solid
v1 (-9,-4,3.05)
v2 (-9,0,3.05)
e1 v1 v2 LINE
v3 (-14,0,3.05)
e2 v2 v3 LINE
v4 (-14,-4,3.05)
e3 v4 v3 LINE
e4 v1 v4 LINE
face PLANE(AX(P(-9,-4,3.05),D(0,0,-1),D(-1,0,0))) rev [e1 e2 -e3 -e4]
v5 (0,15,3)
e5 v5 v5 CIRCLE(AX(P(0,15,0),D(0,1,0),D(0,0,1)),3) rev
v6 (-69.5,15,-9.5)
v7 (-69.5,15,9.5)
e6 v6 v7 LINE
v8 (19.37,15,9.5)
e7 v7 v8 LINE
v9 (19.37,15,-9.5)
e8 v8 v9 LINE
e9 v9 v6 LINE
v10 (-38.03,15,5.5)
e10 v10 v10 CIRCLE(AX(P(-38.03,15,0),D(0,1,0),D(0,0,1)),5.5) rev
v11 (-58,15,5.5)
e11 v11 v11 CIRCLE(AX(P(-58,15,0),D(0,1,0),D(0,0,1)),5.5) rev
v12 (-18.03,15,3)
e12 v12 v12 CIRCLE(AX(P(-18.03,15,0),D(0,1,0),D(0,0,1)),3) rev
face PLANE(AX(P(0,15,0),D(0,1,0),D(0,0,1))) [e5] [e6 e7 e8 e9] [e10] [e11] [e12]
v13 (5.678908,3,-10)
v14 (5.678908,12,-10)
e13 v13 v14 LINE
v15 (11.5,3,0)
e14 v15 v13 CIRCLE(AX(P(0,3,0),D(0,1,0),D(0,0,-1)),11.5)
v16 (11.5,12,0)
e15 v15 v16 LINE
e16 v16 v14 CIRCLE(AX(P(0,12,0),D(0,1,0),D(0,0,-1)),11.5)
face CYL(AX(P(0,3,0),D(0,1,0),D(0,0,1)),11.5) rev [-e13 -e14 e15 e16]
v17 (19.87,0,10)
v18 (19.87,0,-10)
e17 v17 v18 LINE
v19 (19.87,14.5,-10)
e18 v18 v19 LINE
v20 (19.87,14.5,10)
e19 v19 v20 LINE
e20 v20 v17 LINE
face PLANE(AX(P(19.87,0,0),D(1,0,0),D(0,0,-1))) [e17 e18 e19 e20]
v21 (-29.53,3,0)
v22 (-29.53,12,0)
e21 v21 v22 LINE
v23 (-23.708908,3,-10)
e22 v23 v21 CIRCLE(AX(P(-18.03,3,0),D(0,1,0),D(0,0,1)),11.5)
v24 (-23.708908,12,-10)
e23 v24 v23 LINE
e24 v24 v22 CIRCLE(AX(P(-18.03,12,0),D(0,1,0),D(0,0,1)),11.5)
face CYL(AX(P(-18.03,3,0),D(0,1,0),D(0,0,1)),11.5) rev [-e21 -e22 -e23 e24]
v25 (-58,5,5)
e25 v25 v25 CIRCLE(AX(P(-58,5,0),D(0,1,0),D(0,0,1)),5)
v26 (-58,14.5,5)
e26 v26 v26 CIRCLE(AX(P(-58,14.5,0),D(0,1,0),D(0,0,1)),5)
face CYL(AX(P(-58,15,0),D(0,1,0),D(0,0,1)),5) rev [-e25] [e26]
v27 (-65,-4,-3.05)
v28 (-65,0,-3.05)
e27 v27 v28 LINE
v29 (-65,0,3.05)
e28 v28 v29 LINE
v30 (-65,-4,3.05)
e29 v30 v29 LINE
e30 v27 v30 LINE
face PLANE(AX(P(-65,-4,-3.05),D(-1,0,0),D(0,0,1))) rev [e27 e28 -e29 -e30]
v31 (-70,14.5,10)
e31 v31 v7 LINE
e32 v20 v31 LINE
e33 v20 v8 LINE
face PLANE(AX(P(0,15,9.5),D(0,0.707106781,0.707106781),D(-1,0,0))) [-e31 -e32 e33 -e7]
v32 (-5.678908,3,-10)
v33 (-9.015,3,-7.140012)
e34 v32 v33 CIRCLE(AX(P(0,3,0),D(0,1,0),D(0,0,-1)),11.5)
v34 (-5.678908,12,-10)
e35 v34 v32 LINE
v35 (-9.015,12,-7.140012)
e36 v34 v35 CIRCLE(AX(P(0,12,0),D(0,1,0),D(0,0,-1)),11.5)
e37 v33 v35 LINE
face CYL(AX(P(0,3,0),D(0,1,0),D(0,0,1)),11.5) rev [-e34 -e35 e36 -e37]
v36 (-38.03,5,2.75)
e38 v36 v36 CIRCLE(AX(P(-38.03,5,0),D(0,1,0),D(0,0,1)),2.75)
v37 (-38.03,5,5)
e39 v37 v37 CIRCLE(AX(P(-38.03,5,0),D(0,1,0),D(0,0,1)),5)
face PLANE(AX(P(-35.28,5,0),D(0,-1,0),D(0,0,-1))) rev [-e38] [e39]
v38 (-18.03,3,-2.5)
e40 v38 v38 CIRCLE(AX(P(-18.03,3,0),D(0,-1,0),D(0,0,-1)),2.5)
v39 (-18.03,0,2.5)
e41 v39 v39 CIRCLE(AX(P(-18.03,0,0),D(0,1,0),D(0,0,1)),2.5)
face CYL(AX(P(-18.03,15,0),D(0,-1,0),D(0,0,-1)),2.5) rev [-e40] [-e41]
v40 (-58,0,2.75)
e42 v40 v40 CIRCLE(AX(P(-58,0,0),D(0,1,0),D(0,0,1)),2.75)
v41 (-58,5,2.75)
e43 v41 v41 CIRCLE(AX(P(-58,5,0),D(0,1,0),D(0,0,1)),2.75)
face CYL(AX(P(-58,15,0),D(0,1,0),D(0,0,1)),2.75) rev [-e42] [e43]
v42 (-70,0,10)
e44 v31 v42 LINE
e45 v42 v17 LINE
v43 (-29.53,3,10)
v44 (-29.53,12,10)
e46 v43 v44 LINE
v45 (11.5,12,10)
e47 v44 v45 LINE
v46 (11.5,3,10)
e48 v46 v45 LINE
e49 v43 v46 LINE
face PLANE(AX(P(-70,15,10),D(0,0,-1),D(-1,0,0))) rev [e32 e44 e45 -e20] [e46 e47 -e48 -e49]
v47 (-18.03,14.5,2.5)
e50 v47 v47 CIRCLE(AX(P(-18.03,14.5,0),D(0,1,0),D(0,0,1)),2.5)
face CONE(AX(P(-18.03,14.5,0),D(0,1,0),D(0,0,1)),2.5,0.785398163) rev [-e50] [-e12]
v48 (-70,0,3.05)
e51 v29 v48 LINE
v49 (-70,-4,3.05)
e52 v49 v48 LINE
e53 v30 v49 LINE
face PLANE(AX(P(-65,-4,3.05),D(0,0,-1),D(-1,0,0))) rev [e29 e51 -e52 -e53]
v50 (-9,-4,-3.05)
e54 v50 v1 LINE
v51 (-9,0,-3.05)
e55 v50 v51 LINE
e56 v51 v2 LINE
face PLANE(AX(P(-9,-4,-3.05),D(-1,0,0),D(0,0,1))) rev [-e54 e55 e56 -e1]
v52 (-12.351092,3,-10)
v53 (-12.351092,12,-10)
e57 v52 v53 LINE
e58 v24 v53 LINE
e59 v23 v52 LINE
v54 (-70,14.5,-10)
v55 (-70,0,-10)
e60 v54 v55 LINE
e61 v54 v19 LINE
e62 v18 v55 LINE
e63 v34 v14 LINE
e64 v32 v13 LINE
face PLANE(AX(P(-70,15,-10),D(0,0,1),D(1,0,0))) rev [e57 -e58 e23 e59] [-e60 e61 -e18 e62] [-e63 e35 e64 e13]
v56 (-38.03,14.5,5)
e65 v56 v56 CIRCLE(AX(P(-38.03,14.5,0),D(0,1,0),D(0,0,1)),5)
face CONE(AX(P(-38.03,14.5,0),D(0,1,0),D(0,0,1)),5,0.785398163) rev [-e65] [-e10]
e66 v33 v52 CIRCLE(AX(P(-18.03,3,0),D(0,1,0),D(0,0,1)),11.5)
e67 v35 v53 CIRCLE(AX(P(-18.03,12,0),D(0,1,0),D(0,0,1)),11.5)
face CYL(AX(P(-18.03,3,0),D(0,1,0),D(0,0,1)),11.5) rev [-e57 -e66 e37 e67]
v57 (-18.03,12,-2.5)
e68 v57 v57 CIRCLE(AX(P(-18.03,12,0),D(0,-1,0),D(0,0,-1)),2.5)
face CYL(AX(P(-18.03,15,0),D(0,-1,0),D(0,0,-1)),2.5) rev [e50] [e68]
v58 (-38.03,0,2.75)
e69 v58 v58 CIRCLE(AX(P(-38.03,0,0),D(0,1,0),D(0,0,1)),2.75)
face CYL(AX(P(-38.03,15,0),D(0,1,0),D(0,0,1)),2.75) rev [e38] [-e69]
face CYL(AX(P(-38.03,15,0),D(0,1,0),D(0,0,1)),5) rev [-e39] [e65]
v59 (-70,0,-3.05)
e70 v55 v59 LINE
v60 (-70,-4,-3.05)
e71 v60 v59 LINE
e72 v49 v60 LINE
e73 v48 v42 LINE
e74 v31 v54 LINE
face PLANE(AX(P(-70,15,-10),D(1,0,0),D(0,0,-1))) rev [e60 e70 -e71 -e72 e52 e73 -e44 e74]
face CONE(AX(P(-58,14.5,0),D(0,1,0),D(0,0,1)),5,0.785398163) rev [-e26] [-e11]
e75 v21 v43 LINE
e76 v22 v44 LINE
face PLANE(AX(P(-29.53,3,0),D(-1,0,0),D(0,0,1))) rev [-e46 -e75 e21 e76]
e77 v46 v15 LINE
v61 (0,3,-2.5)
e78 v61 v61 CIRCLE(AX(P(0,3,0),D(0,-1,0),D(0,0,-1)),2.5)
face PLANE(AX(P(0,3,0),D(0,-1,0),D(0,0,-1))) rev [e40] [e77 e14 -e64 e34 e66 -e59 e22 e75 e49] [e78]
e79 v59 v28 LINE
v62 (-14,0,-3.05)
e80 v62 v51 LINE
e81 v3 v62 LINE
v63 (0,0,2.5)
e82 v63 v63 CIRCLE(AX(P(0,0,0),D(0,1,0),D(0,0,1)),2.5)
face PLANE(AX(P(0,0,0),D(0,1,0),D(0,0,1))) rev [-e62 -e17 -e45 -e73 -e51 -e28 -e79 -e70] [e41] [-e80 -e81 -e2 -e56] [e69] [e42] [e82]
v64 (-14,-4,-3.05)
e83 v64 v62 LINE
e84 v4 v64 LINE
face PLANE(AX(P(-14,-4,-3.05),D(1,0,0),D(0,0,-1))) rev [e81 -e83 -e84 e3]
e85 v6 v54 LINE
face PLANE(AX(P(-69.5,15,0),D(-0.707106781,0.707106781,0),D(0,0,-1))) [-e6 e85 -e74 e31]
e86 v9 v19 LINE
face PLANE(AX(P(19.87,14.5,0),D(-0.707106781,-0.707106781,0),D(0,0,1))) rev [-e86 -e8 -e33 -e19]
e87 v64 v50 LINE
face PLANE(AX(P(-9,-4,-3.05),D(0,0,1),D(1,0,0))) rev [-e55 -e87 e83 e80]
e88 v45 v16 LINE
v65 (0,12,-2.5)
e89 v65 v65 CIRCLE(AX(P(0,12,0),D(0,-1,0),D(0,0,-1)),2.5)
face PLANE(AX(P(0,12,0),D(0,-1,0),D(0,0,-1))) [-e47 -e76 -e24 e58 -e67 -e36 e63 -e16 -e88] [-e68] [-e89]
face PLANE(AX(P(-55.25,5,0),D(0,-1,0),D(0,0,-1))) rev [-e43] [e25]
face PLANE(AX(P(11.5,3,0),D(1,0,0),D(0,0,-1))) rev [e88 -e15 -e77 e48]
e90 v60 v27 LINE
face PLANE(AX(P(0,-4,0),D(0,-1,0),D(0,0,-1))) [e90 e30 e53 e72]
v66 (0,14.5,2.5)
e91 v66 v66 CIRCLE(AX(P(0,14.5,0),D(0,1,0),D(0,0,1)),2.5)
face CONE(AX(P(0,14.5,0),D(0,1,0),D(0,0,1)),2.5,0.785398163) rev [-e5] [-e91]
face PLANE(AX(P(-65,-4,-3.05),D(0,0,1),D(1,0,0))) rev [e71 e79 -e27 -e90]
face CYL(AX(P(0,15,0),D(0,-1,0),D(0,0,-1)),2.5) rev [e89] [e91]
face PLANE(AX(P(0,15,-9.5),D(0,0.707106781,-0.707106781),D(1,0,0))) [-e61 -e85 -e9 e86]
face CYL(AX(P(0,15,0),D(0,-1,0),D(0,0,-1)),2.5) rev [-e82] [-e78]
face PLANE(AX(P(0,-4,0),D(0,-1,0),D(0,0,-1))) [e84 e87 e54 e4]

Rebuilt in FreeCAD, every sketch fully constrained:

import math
import FreeCAD as App
import Part
import Sketcher
from FreeCAD import Vector


def edges_at(feature, points):
    """Names of the edges that pass closest to the given points."""
    edges = feature.Shape.Edges
    near = lambda p: min(range(len(edges)), key=lambda i: edges[i].distToShape(Part.Vertex(*p))[0])
    return sorted({f"Edge{near(p) + 1}" for p in points})


def add_polygon(sketch, points):
    """Adds a closed chain of lines whose ends are joined by coincident constraints."""
    first, n = sketch.GeometryCount, len(points)
    for a, b in zip(points, points[1:] + points[:1]):
        sketch.addGeometry(Part.LineSegment(App.Vector(*a, 0), App.Vector(*b, 0)), False)
    for i in range(n):
        sketch.addConstraint(Sketcher.Constraint("Coincident", first + i, 2, first + (i + 1) % n, 1))

doc = App.newDocument("Part")
body = doc.addObject("PartDesign::Body", "Body")

# Sketch on XZ plane
sketch1 = doc.addObject("Sketcher::SketchObject", "Sketch")
body.addObject(sketch1)
sketch1.AttachmentSupport = (doc.XZ_Plane, [""])
sketch1.MapMode = "FlatFace"
add_polygon(sketch1, [(-70, -10), (-70, 10), (11.4, 10), (11.4, -10)])  # lines 0-3
sketch1.addGeometry(Part.Circle(Vector(-18, 0, 0), Vector(0, 0, 1), 2.5), False)  # 4
sketch1.addGeometry(Part.Circle(Vector(0, 0, 0), Vector(0, 0, 1), 2.5), False)  # 5
sketch1.addConstraint([
    Sketcher.Constraint("Vertical", 0),
    Sketcher.Constraint("Horizontal", 1),
    Sketcher.Constraint("Vertical", 2),
    Sketcher.Constraint("Horizontal", 3),
    Sketcher.Constraint("Coincident", 5, 3, -1, 1),
    Sketcher.Constraint("Equal", 4, 5),
    Sketcher.Constraint("PointOnObject", 4, 3, -1),
    Sketcher.Constraint("Diameter", 4, 5.0),
    Sketcher.Constraint("DistanceY", 0, 1, 0, 2, 20.0),
    Sketcher.Constraint("DistanceX", 0, 2, -1, 1, 70.0),
    Sketcher.Constraint("DistanceY", -1, 1, 0, 2, 10.0),
    Sketcher.Constraint("DistanceX", 1, 1, 1, 2, 81.37),
    Sketcher.Constraint("DistanceX", 4, 3, 1, 2, 29.4),
])
pad1 = doc.addObject("PartDesign::Pad", "Pad")
body.addObject(pad1)
pad1.Profile = sketch1
pad1.Length = 15
pad1.Reversed = True

# Sketch on XZ plane
sketch2 = doc.addObject("Sketcher::SketchObject", "Sketch001")
body.addObject(sketch2)
sketch2.AttachmentSupport = (doc.XZ_Plane, [""])
sketch2.MapMode = "FlatFace"
sketch2.AttachmentOffset = App.Placement(Vector(0, 0, -15), App.Rotation())
sketch2.addGeometry([
    Part.Circle(Vector(-58, 0, 0), Vector(0, 0, 1), 2.8),
    Part.Circle(Vector(-38, 0, 0), Vector(0, 0, 1), 2.8),
], False)
sketch2.addConstraint([
    Sketcher.Constraint("Equal", 0, 1),
    Sketcher.Constraint("PointOnObject", 0, 3, -1),
    Sketcher.Constraint("PointOnObject", 1, 3, -1),
    Sketcher.Constraint("Diameter", 0, 5.5),
    Sketcher.Constraint("DistanceX", 0, 3, -1, 1, 58.0),
    Sketcher.Constraint("DistanceX", 1, 3, -1, 1, 38.03),
])
doc.recompute()
hole = doc.addObject("PartDesign::Hole", "Hole")
body.addObject(hole)
hole.Profile = sketch2
hole.ThreadType = "None"
hole.Diameter = 5.5
hole.DepthType = "ThroughAll"
hole.HoleCutType = "Counterbore"
hole.HoleCutDiameter = 10
hole.HoleCutDepth = 10
hole.Reversed = True

# Sketch on YZ plane
sketch3 = doc.addObject("Sketcher::SketchObject", "Sketch002")
body.addObject(sketch3)
sketch3.AttachmentSupport = (doc.YZ_Plane, [""])
sketch3.MapMode = "FlatFace"
sketch3.AttachmentOffset = App.Placement(Vector(0, 0, 11.37), App.Rotation())
add_polygon(sketch3, [(15, 10), (0, 10), (0, -10), (15, -10)])  # lines 0-3
sketch3.addConstraint([
    Sketcher.Constraint("Horizontal", 0),
    Sketcher.Constraint("Vertical", 1),
    Sketcher.Constraint("Horizontal", 2),
    Sketcher.Constraint("Vertical", 3),
    Sketcher.Constraint("Symmetric", 0, 2, 1, 2, -1, 1),
    Sketcher.Constraint("DistanceX", 0, 2, 0, 1, 15.0),
    Sketcher.Constraint("DistanceY", 1, 2, 1, 1, 20.0),
])
pad2 = doc.addObject("PartDesign::Pad", "Pad001")
body.addObject(pad2)
pad2.Profile = sketch3
pad2.Length = 8.5

# Sketch on XZ plane
sketch4 = doc.addObject("Sketcher::SketchObject", "Sketch003")
body.addObject(sketch4)
sketch4.AttachmentSupport = (doc.XZ_Plane, [""])
sketch4.MapMode = "FlatFace"
sketch4.AttachmentOffset = App.Placement(Vector(0, 0, -12), App.Rotation())
sketch4.addGeometry([
    Part.LineSegment(Vector(-30, 0, 0), Vector(-30, 10, 0)),  # 0
    Part.LineSegment(Vector(-30, 10, 0), Vector(12, 10, 0)),  # 1
    Part.LineSegment(Vector(12, 10, 0), Vector(12, 0, 0)),  # 2
    Part.ArcOfCircle(Part.Circle(Vector(0, 0, 0), Vector(0, 0, 1), 12), math.radians(-142), math.radians(0)),  # 3
    Part.ArcOfCircle(Part.Circle(Vector(-18, 0, 0), Vector(0, 0, 1), 12), math.radians(-180), math.radians(-38)),  # 4
], False)
sketch4.addConstraint([
    Sketcher.Constraint("Coincident", 0, 2, 1, 1),
    Sketcher.Constraint("Coincident", 1, 2, 2, 1),
    Sketcher.Constraint("Tangent", 2, 2, 3, 2),
    Sketcher.Constraint("Coincident", 3, 1, 4, 2),
    Sketcher.Constraint("Tangent", 4, 1, 0, 1),
    Sketcher.Constraint("Vertical", 0),
    Sketcher.Constraint("Horizontal", 1),
    Sketcher.Constraint("Vertical", 2),
    Sketcher.Constraint("Coincident", 3, 3, -1, 1),
    Sketcher.Constraint("Equal", 3, 4),
    Sketcher.Constraint("PointOnObject", 4, 3, -1),
    Sketcher.Constraint("Radius", 3, 11.5),
    Sketcher.Constraint("DistanceY", 0, 1, 0, 2, 10.0),
    Sketcher.Constraint("DistanceX", 1, 1, 1, 2, 41.03),
])
pocket1 = doc.addObject("PartDesign::Pocket", "Pocket")
body.addObject(pocket1)
pocket1.Profile = sketch4
pocket1.Length = 9
pocket1.Reversed = True

# Sketch on XZ plane
sketch5 = doc.addObject("Sketcher::SketchObject", "Sketch004")
body.addObject(sketch5)
sketch5.AttachmentSupport = (doc.XZ_Plane, [""])
sketch5.MapMode = "FlatFace"
add_polygon(sketch5, [(-14, 3), (-14, -3), (-9, -3), (-9, 3)])  # lines 0-3
add_polygon(sketch5, [(-70, 3), (-70, -3), (-65, -3), (-65, 3)])  # lines 4-7
sketch5.addConstraint([
    Sketcher.Constraint("Vertical", 0),
    Sketcher.Constraint("Horizontal", 1),
    Sketcher.Constraint("Vertical", 2),
    Sketcher.Constraint("Horizontal", 3),
    Sketcher.Constraint("Vertical", 4),
    Sketcher.Constraint("Horizontal", 5),
    Sketcher.Constraint("Vertical", 6),
    Sketcher.Constraint("Horizontal", 7),
    Sketcher.Constraint("Horizontal", 1, 2, 4, 2),
    Sketcher.Constraint("Horizontal", 3, 2, 6, 2),
    Sketcher.Constraint("Equal", 3, 5),
    Sketcher.Constraint("DistanceX", 1, 1, 1, 2, 5.0),
    Sketcher.Constraint("DistanceY", 0, 2, 0, 1, 6.1),
    Sketcher.Constraint("DistanceX", 0, 2, -1, 1, 14.0),
    Sketcher.Constraint("DistanceX", 4, 2, -1, 1, 70.0),
    Sketcher.Constraint("DistanceY", 0, 2, -1, 1, 3.05),
])
pad3 = doc.addObject("PartDesign::Pad", "Pad002")
body.addObject(pad3)
pad3.Profile = sketch5
pad3.Length = 4
doc.recompute()

chamfer = doc.addObject("PartDesign::Chamfer", "Chamfer")
body.addObject(chamfer)
chamfer.Base = (pad3, edges_at(pad3, [
    (-2.5, 15, 0),
    (-70, 15, 0),
    (-20.53, 15, 0),
    (-25.065, 15, 10),
    (-43.03, 15, 0),
    (-63, 15, 0),
    (19.87, 15, 0),
    (-25.065, 15, -10),
]))
chamfer.Size = 0.5

doc.recompute()
